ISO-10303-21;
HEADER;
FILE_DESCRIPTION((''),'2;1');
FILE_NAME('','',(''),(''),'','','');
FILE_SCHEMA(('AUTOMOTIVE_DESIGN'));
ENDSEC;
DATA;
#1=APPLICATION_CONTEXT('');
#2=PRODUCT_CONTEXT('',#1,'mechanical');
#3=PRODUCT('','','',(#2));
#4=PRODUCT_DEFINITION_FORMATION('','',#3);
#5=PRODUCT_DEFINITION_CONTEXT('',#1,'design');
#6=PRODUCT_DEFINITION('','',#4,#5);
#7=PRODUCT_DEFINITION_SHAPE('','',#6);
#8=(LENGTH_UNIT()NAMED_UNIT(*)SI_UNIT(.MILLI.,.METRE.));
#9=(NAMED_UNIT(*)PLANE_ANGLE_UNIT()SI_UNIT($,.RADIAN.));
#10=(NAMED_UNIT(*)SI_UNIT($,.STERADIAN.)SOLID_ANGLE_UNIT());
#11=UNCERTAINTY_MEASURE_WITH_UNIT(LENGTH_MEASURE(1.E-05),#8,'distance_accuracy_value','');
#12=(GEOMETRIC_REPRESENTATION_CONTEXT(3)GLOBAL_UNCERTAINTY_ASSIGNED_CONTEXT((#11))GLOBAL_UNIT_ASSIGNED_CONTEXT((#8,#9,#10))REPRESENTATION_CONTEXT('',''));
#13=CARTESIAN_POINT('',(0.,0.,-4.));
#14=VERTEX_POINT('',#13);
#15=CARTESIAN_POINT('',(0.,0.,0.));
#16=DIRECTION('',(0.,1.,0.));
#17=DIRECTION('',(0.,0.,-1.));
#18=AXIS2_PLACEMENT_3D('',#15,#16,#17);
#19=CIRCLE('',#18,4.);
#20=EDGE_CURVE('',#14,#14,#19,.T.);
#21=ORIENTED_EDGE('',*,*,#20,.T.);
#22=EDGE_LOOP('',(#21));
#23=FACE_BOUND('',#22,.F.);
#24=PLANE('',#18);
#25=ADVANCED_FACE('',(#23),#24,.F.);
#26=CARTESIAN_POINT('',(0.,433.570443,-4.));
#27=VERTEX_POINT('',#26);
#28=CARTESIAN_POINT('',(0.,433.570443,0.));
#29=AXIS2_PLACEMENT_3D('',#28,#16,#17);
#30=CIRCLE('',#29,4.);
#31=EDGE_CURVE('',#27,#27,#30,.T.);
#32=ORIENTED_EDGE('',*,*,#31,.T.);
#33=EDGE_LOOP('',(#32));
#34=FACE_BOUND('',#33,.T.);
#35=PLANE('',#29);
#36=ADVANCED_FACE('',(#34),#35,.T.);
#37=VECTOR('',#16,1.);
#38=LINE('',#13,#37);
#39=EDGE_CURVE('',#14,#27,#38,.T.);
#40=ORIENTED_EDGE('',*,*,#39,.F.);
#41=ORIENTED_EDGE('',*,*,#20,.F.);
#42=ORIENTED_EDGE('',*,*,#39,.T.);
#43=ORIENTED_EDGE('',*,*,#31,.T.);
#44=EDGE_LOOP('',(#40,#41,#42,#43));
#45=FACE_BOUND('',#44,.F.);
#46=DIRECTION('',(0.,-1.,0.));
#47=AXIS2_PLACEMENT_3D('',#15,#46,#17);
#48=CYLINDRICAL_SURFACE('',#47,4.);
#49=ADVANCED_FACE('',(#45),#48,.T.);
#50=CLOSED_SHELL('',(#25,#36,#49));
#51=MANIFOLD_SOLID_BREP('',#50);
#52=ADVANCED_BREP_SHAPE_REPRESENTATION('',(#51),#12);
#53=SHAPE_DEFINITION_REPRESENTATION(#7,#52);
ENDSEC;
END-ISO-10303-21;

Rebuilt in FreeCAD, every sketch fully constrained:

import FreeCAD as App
import Part
import Sketcher
from FreeCAD import Vector

doc = App.newDocument("Part")
body = doc.addObject("PartDesign::Body", "Body")

# Sketch on XZ plane
sketch1 = body.newObject("Sketcher::SketchObject", "Sketch")
sketch1.AttachmentSupport = (doc.getObject("XZ_Plane"), [""])
sketch1.MapMode = "FlatFace"
sketch1.addGeometry(Part.Circle(Vector(0, 0, 0), Vector(0, 0, 1), 4), False)
sketch1.addConstraint([
    Sketcher.Constraint("Coincident", 0, 3, -1, 1),
    Sketcher.Constraint("Diameter", 0, 8.0),
])
pad1 = body.newObject("PartDesign::Pad", "Pad")
pad1.Profile = sketch1
pad1.Length = 433.570443
pad1.Reversed = True

doc.recompute()
